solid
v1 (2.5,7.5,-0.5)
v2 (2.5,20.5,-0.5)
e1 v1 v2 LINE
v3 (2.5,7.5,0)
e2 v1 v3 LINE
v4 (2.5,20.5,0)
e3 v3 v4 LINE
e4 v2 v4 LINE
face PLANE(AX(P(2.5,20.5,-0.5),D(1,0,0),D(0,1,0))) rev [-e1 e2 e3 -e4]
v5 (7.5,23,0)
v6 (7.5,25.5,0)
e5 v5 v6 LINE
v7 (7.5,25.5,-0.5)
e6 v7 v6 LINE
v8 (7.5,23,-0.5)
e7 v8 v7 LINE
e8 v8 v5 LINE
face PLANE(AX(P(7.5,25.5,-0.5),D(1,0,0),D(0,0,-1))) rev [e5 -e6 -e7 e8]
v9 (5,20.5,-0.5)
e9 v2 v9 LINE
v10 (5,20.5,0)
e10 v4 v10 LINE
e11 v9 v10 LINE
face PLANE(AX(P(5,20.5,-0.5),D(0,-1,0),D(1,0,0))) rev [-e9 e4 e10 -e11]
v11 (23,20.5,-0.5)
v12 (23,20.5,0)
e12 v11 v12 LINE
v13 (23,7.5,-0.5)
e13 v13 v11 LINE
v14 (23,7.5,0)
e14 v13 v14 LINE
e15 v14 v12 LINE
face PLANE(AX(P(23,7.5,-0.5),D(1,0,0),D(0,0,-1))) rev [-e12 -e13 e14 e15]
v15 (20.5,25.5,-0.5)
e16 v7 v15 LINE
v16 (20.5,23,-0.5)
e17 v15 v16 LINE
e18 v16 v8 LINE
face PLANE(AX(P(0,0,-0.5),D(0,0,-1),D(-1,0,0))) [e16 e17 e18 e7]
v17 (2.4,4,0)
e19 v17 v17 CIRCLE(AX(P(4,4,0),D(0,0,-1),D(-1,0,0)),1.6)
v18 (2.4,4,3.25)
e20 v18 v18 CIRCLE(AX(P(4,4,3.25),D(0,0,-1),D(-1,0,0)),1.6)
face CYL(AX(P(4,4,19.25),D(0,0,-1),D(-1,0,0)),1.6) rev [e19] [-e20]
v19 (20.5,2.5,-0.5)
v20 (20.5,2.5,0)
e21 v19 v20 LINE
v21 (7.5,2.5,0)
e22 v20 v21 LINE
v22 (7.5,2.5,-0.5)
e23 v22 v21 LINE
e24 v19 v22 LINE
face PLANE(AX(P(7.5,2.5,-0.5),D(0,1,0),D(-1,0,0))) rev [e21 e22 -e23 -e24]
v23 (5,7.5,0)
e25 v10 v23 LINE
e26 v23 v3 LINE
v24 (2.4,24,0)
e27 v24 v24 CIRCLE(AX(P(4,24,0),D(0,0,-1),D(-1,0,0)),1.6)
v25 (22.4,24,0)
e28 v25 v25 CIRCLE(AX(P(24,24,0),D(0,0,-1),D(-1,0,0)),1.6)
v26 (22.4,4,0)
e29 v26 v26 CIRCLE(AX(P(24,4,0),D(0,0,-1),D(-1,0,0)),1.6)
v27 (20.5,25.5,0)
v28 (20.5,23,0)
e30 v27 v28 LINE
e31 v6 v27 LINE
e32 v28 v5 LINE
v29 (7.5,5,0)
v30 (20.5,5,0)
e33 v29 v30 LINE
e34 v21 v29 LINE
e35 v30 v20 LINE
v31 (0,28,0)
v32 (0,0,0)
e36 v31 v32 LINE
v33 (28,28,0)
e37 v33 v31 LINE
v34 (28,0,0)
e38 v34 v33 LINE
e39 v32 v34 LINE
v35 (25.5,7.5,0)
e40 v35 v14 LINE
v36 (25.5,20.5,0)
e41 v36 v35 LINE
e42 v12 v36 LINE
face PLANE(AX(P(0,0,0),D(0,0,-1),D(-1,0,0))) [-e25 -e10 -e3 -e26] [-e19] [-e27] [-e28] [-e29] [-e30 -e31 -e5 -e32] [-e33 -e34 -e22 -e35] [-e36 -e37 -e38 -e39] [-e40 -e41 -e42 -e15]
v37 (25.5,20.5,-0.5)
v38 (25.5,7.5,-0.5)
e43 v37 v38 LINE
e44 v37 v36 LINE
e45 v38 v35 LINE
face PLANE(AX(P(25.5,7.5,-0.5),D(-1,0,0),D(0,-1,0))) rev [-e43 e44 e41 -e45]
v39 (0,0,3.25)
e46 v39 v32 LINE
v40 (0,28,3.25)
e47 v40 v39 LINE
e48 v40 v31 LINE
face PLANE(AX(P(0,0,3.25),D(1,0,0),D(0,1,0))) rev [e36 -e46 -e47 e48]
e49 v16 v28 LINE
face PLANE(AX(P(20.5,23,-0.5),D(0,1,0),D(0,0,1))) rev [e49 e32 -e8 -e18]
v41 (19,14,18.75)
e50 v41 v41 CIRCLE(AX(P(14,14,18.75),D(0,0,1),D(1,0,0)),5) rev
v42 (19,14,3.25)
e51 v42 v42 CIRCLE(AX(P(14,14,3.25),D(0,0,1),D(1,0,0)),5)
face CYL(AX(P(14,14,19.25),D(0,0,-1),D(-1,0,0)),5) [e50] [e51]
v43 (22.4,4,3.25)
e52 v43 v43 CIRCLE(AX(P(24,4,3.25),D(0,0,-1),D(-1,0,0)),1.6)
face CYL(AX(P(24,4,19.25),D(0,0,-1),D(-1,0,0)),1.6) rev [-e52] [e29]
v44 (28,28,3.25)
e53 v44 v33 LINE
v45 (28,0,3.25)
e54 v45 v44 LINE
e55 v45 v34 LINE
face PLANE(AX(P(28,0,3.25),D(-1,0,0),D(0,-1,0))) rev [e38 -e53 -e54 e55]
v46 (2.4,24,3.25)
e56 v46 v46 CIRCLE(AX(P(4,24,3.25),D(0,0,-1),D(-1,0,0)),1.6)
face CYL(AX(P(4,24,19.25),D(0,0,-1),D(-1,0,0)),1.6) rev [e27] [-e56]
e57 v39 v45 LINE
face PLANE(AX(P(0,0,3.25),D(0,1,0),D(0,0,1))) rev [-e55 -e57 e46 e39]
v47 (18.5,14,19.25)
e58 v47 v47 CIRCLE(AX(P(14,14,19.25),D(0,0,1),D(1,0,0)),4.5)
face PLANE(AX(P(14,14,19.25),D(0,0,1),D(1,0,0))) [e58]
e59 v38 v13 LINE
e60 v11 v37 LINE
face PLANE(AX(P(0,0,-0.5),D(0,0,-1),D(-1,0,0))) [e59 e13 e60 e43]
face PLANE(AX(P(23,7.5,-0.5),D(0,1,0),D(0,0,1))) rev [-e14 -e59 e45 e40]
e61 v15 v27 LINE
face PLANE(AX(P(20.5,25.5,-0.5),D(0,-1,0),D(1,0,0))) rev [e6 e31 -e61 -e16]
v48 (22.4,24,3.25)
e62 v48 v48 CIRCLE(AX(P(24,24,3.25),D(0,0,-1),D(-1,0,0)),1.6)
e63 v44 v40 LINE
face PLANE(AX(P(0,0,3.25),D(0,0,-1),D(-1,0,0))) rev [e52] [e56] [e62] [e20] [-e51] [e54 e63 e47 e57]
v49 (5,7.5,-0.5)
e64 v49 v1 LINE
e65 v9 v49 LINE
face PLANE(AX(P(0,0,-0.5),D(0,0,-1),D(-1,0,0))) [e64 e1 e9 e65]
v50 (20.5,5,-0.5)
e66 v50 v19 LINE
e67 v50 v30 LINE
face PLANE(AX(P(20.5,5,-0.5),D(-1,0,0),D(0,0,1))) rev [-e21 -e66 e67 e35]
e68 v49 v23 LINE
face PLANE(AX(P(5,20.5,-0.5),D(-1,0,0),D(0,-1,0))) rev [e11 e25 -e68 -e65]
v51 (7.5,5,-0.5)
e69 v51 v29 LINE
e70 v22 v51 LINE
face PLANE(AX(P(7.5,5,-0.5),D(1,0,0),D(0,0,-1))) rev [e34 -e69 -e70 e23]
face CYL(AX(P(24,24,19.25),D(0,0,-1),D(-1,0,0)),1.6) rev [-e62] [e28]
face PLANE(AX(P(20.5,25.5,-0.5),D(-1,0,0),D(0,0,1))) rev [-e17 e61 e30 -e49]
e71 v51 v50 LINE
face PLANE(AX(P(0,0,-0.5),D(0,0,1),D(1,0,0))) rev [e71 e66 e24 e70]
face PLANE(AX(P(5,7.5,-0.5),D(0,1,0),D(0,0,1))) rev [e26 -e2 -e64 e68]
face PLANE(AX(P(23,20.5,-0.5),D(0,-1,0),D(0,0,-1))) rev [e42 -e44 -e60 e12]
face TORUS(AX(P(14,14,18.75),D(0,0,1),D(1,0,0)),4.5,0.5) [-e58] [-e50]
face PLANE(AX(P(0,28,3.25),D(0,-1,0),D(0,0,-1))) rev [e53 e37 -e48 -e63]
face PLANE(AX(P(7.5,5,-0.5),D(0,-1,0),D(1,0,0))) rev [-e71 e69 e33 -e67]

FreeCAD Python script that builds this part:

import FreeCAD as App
import Part
import Sketcher

V = App.Vector
Q = App.Units.Quantity


def edges_at(feature, points):
    """Names of the edges that pass closest to the given points."""
    edges = feature.Shape.Edges
    near = lambda p: min(range(len(edges)), key=lambda i: edges[i].distToShape(Part.Vertex(*p))[0])
    return sorted({f"Edge{near(p) + 1}" for p in points})

doc = App.newDocument("Part")
params = doc.addObject("Spreadsheet::Sheet", "Params")
for row, (alias, value) in enumerate([
    ("sketch1_width", "28 mm"),
    ("pad1_length", "3.25 mm"),
    ("sketch2_diameter", "10 mm"),
    ("pad2_length", "16 mm"),
    ("sketch3_diameter", "3.2 mm"),
    ("fillet_radius", "0.5 mm"),
    ("sketch4_width", "13 mm"),
    ("sketch4_width2", "2.5 mm"),
    ("pad3_length", "0.5 mm"),
], start=1):
    params.set(f"A{row}", alias)
    params.set(f"B{row}", "=" + value)
    params.setAlias(f"B{row}", alias)

body = doc.addObject("PartDesign::Body", "Body")

# Sketch on XY plane
sketch1 = body.newObject("Sketcher::SketchObject", "Sketch")
sketch1.AttachmentSupport = (doc.getObject("XY_Plane"), [""])
sketch1.MapMode = "FlatFace"
sketch1.addGeometry([
    Part.LineSegment(V(0, 28, 0), V(0, 0, 0)),
    Part.LineSegment(V(0, 0, 0), V(28, 0, 0)),
    Part.LineSegment(V(28, 0, 0), V(28, 28, 0)),
    Part.LineSegment(V(28, 28, 0), V(0, 28, 0)),
], False)
sketch1.addConstraint([
    Sketcher.Constraint("Coincident", 0, 2, 1, 1),
    Sketcher.Constraint("Coincident", 1, 2, 2, 1),
    Sketcher.Constraint("Coincident", 2, 2, 3, 1),
    Sketcher.Constraint("Coincident", 3, 2, 0, 1),
    Sketcher.Constraint("Vertical", 0),
    Sketcher.Constraint("Horizontal", 1),
    Sketcher.Constraint("Vertical", 2),
    Sketcher.Constraint("Horizontal", 3),
    Sketcher.Constraint("Coincident", 0, 2, -1, 1),
    Sketcher.Constraint("Equal", 3, 0),
    Sketcher.Constraint("DistanceX", 1, 1, 1, 2, Q("28 mm")),
])
sketch1.setExpression("Constraints[10]", "Params.sketch1_width")
pad1 = body.newObject("PartDesign::Pad", "Pad")
pad1.Profile = sketch1
pad1.setExpression("Length", "Params.pad1_length")

# Sketch on XY plane
sketch2 = body.newObject("Sketcher::SketchObject", "Sketch001")
sketch2.AttachmentSupport = (doc.getObject("XY_Plane"), [""])
sketch2.MapMode = "FlatFace"
sketch2.AttachmentOffset = App.Placement(V(0, 0, 3.25), App.Rotation())
sketch2.addGeometry(Part.Circle(V(14, 14, 0), V(0, 0, 1), 5), False)
sketch2.addConstraint([
    Sketcher.Constraint("Diameter", 0, Q("10 mm")),
    Sketcher.Constraint("DistanceX", -1, 1, 0, 3, Q("14 mm")),
    Sketcher.Constraint("DistanceY", -1, 1, 0, 3, Q("14 mm")),
])
sketch2.setExpression("Constraints[0]", "Params.sketch2_diameter")
pad2 = body.newObject("PartDesign::Pad", "Pad001")
pad2.Profile = sketch2
pad2.setExpression("Length", "Params.pad2_length")

# Sketch on XY plane
sketch3 = body.newObject("Sketcher::SketchObject", "Sketch002")
sketch3.AttachmentSupport = (doc.getObject("XY_Plane"), [""])
sketch3.MapMode = "FlatFace"
sketch3.addGeometry([
    Part.Circle(V(24, 24, 0), V(0, 0, 1), 1.6),
    Part.Circle(V(4, 24, 0), V(0, 0, 1), 1.6),
    Part.Circle(V(4, 4, 0), V(0, 0, 1), 1.6),
    Part.Circle(V(24, 4, 0), V(0, 0, 1), 1.6),
], False)
sketch3.addConstraint([
    Sketcher.Constraint("Equal", 0, 1),
    Sketcher.Constraint("Equal", 1, 2),
    Sketcher.Constraint("Equal", 2, 3),
    Sketcher.Constraint("Horizontal", 0, 3, 1, 3),
    Sketcher.Constraint("Horizontal", 2, 3, 3, 3),
    Sketcher.Constraint("Vertical", 1, 3, 2, 3),
    Sketcher.Constraint("Vertical", 0, 3, 3, 3),
    Sketcher.Constraint("Diameter", 0, Q("3.2 mm")),
    Sketcher.Constraint("DistanceX", -1, 1, 0, 3, Q("24 mm")),
    Sketcher.Constraint("DistanceY", -1, 1, 0, 3, Q("24 mm")),
    Sketcher.Constraint("DistanceX", -1, 1, 1, 3, Q("4 mm")),
    Sketcher.Constraint("DistanceY", -1, 1, 2, 3, Q("4 mm")),
])
sketch3.setExpression("Constraints[7]", "Params.sketch3_diameter")
pocket1 = body.newObject("PartDesign::Pocket", "Pocket")
pocket1.Profile = sketch3
pocket1.Type = "ThroughAll"
pocket1.Reversed = True
doc.recompute()

fillet = body.newObject("PartDesign::Fillet", "Fillet")
fillet.Base = (pocket1, edges_at(pocket1, [(9, 14, 19.25)]))
fillet.setExpression("Radius", "Params.fillet_radius")

# Sketch on XY plane
sketch4 = body.newObject("Sketcher::SketchObject", "Sketch003")
sketch4.AttachmentSupport = (doc.getObject("XY_Plane"), [""])
sketch4.MapMode = "FlatFace"
sketch4.addGeometry([
    Part.LineSegment(V(20.5, 25.5, 0), V(20.5, 23, 0)),  # 0
    Part.LineSegment(V(20.5, 23, 0), V(7.5, 23, 0)),  # 1
    Part.LineSegment(V(7.5, 23, 0), V(7.5, 25.5, 0)),  # 2
    Part.LineSegment(V(7.5, 25.5, 0), V(20.5, 25.5, 0)),  # 3
    Part.LineSegment(V(5, 20.5, 0), V(5, 7.5, 0)),  # 4
    Part.LineSegment(V(5, 7.5, 0), V(2.5, 7.5, 0)),  # 5
    Part.LineSegment(V(2.5, 7.5, 0), V(2.5, 20.5, 0)),  # 6
    Part.LineSegment(V(2.5, 20.5, 0), V(5, 20.5, 0)),  # 7
    Part.LineSegment(V(20.5, 5, 0), V(20.5, 2.5, 0)),  # 8
    Part.LineSegment(V(20.5, 2.5, 0), V(7.5, 2.5, 0)),  # 9
    Part.LineSegment(V(7.5, 2.5, 0), V(7.5, 5, 0)),  # 10
    Part.LineSegment(V(7.5, 5, 0), V(20.5, 5, 0)),  # 11
    Part.LineSegment(V(25.5, 20.5, 0), V(25.5, 7.5, 0)),  # 12
    Part.LineSegment(V(25.5, 7.5, 0), V(23, 7.5, 0)),  # 13
    Part.LineSegment(V(23, 7.5, 0), V(23, 20.5, 0)),  # 14
    Part.LineSegment(V(23, 20.5, 0), V(25.5, 20.5, 0)),  # 15
], False)
sketch4.addConstraint([
    Sketcher.Constraint("Coincident", 0, 2, 1, 1),
    Sketcher.Constraint("Coincident", 1, 2, 2, 1),
    Sketcher.Constraint("Coincident", 2, 2, 3, 1),
    Sketcher.Constraint("Coincident", 3, 2, 0, 1),
    Sketcher.Constraint("Coincident", 4, 2, 5, 1),
    Sketcher.Constraint("Coincident", 5, 2, 6, 1),
    Sketcher.Constraint("Coincident", 6, 2, 7, 1),
    Sketcher.Constraint("Coincident", 7, 2, 4, 1),
    Sketcher.Constraint("Coincident", 8, 2, 9, 1),
    Sketcher.Constraint("Coincident", 9, 2, 10, 1),
    Sketcher.Constraint("Coincident", 10, 2, 11, 1),
    Sketcher.Constraint("Coincident", 11, 2, 8, 1),
    Sketcher.Constraint("Coincident", 12, 2, 13, 1),
    Sketcher.Constraint("Coincident", 13, 2, 14, 1),
    Sketcher.Constraint("Coincident", 14, 2, 15, 1),
    Sketcher.Constraint("Coincident", 15, 2, 12, 1),
    Sketcher.Constraint("Vertical", 0),
    Sketcher.Constraint("Horizontal", 1),
    Sketcher.Constraint("Vertical", 2),
    Sketcher.Constraint("Horizontal", 3),
    Sketcher.Constraint("Vertical", 4),
    Sketcher.Constraint("Horizontal", 5),
    Sketcher.Constraint("Vertical", 6),
    Sketcher.Constraint("Horizontal", 7),
    Sketcher.Constraint("Vertical", 8),
    Sketcher.Constraint("Horizontal", 9),
    Sketcher.Constraint("Vertical", 10),
    Sketcher.Constraint("Horizontal", 11),
    Sketcher.Constraint("Vertical", 12),
    Sketcher.Constraint("Horizontal", 13),
    Sketcher.Constraint("Vertical", 14),
    Sketcher.Constraint("Horizontal", 15),
    Sketcher.Constraint("Horizontal", 5, 2, 12, 2),
    Sketcher.Constraint("Horizontal", 7, 2, 14, 2),
    Sketcher.Constraint("Vertical", 3, 2, 8, 2),
    Sketcher.Constraint("Vertical", 2, 2, 9, 2),
    Sketcher.Constraint("Equal", 7, 13),
    Sketcher.Constraint("Equal", 15, 0),
    Sketcher.Constraint("Equal", 11, 4),
    Sketcher.Constraint("Equal", 2, 8),
    Sketcher.Constraint("DistanceX", 1, 2, 1, 1, Q("13 mm")),
    Sketcher.Constraint("DistanceX", 5, 2, 5, 1, Q("2.5 mm")),
    Sketcher.Constraint("DistanceY", -1, 1, 0, 2, Q("23 mm")),
    Sketcher.Constraint("DistanceX", -1, 1, 4, 2, Q("5 mm")),
    Sketcher.Constraint("DistanceY", -1, 1, 10, 2, Q("5 mm")),
    Sketcher.Constraint("DistanceX", -1, 1, 13, 2, Q("23 mm")),
    Sketcher.Constraint("DistanceY", 4, 2, 2, 2, Q("18 mm")),
    Sketcher.Constraint("DistanceX", 5, 2, 1, 2, Q("5 mm")),
])
sketch4.setExpression("Constraints[40]", "Params.sketch4_width")
sketch4.setExpression("Constraints[41]", "Params.sketch4_width2")
pad3 = body.newObject("PartDesign::Pad", "Pad002")
pad3.Profile = sketch4
pad3.setExpression("Length", "Params.pad3_length")
pad3.Reversed = True

doc.recompute()
